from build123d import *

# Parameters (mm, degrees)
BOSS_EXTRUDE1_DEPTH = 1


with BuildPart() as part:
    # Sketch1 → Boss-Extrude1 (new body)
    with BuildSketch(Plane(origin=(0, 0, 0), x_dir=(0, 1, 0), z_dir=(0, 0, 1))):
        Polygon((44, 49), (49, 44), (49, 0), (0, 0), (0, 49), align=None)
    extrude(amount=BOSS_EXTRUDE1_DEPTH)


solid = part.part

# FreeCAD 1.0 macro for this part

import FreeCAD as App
import Part
import Sketcher

V = App.Vector


def add_polygon(sketch, points):
    """Adds a closed chain of lines whose ends are joined by coincident constraints."""
    first, n = sketch.GeometryCount, len(points)
    for a, b in zip(points, points[1:] + points[:1]):
        sketch.addGeometry(Part.LineSegment(App.Vector(*a, 0), App.Vector(*b, 0)), False)
    for i in range(n):
        sketch.addConstraint(Sketcher.Constraint("Coincident", first + i, 2, first + (i + 1) % n, 1))

doc = App.newDocument("Part")
body = doc.addObject("PartDesign::Body", "Body")

# Sketch on XY plane
sketch1 = doc.addObject("Sketcher::SketchObject", "Sketch")
body.addObject(sketch1)
sketch1.AttachmentSupport = (doc.XY_Plane, [""])
sketch1.MapMode = "FlatFace"
add_polygon(sketch1, [(-44, 49), (-49, 44), (-49, 0), (0, 0), (0, 49)])  # lines 0-4
sketch1.addConstraint([
    Sketcher.Constraint("Vertical", 1),
    Sketcher.Constraint("Horizontal", 2),
    Sketcher.Constraint("Vertical", 3),
    Sketcher.Constraint("Horizontal", 4),
    Sketcher.Constraint("Coincident", 2, 2, -1, 1),
    Sketcher.Constraint("Equal", 4, 1),
    Sketcher.Constraint("Equal", 2, 3),
    Sketcher.Constraint("DistanceX", 2, 1, 2, 2, 49.0),
    Sketcher.Constraint("DistanceX", 4, 2, 4, 1, 44.0),
])
pad1 = doc.addObject("PartDesign::Pad", "Pad")
body.addObject(pad1)
pad1.Profile = sketch1
pad1.Length = 1

doc.recompute()
